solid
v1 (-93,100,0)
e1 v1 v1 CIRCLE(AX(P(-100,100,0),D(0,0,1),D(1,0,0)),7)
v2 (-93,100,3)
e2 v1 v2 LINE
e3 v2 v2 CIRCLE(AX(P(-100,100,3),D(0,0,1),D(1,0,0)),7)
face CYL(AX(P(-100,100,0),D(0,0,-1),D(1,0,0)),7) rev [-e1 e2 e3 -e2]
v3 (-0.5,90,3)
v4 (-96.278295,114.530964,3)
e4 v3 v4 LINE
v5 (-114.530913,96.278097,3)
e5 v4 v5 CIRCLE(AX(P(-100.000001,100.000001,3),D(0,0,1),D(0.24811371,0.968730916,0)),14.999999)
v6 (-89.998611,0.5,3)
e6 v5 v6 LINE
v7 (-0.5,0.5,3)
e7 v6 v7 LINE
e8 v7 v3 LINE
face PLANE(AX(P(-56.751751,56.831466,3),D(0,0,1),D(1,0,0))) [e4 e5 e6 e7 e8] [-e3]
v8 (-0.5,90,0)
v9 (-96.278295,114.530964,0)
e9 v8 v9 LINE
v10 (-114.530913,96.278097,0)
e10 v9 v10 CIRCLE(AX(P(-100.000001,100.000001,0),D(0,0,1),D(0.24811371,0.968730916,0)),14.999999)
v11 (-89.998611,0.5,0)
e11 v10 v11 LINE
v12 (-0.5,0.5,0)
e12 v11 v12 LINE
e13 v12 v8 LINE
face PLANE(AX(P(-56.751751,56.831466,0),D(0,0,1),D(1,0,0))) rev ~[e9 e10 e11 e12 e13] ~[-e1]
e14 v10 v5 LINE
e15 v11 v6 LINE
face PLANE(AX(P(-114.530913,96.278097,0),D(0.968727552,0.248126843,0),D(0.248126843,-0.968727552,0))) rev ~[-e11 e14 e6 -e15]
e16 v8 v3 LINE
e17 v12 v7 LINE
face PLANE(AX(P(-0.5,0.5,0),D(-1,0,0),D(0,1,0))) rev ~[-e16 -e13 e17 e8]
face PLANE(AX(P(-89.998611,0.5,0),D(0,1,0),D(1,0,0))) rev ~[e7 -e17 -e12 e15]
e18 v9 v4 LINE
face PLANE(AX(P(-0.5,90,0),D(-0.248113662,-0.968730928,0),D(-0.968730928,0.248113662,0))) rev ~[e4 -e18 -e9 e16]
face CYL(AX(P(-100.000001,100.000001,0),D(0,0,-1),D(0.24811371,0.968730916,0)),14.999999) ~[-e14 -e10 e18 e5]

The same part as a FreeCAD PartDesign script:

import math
import FreeCAD as App
import Part
import Sketcher
from FreeCAD import Vector

doc = App.newDocument("Part")
body = doc.addObject("PartDesign::Body", "Body")

# Sketch on XY plane
sketch1 = doc.addObject("Sketcher::SketchObject", "Sketch")
body.addObject(sketch1)
sketch1.AttachmentSupport = (doc.XY_Plane, [""])
sketch1.MapMode = "FlatFace"
sketch1.addGeometry([
    Part.LineSegment(Vector(-115, 96, 0), Vector(-90, 0, 0)),  # 0
    Part.LineSegment(Vector(-90, 0, 0), Vector(0, 0, 0)),  # 1
    Part.LineSegment(Vector(0, 0, 0), Vector(0, 90, 0)),  # 2
    Part.LineSegment(Vector(0, 90, 0), Vector(-96, 115, 0)),  # 3
    Part.ArcOfCircle(Part.Circle(Vector(-100, 100, 0), Vector(0, 0, 1), 15), math.radians(76), math.radians(194)),  # 4
    Part.Circle(Vector(-100, 100, 0), Vector(0, 0, 1), 7),  # 5
], False)
sketch1.addConstraint([
    Sketcher.Constraint("Coincident", 0, 2, 1, 1),
    Sketcher.Constraint("Coincident", 1, 2, 2, 1),
    Sketcher.Constraint("Coincident", 2, 2, 3, 1),
    Sketcher.Constraint("Tangent", 3, 2, 4, 1),
    Sketcher.Constraint("Tangent", 4, 2, 0, 1),
    Sketcher.Constraint("Horizontal", 1),
    Sketcher.Constraint("Vertical", 2),
    Sketcher.Constraint("Coincident", 5, 3, 4, 3),
    Sketcher.Constraint("Diameter", 5, 14.0),
    Sketcher.Constraint("Radius", 4, 14.999999),
    Sketcher.Constraint("DistanceY", 2, 1, 2, 2, 89.5),
    Sketcher.Constraint("DistanceX", 4, 3, -1, 1, 100.000001),
    Sketcher.Constraint("DistanceY", -1, 1, 4, 3, 100.000001),
    Sketcher.Constraint("DistanceY", -1, 1, 2, 2, 90.0),
    Sketcher.Constraint("DistanceX", 1, 2, -1, 1, 0.5),
    Sketcher.Constraint("DistanceX", 1, 1, 1, 2, 89.498611),
])
pad1 = doc.addObject("PartDesign::Pad", "Pad")
body.addObject(pad1)
pad1.Profile = sketch1
pad1.Length = 3

doc.recompute()
